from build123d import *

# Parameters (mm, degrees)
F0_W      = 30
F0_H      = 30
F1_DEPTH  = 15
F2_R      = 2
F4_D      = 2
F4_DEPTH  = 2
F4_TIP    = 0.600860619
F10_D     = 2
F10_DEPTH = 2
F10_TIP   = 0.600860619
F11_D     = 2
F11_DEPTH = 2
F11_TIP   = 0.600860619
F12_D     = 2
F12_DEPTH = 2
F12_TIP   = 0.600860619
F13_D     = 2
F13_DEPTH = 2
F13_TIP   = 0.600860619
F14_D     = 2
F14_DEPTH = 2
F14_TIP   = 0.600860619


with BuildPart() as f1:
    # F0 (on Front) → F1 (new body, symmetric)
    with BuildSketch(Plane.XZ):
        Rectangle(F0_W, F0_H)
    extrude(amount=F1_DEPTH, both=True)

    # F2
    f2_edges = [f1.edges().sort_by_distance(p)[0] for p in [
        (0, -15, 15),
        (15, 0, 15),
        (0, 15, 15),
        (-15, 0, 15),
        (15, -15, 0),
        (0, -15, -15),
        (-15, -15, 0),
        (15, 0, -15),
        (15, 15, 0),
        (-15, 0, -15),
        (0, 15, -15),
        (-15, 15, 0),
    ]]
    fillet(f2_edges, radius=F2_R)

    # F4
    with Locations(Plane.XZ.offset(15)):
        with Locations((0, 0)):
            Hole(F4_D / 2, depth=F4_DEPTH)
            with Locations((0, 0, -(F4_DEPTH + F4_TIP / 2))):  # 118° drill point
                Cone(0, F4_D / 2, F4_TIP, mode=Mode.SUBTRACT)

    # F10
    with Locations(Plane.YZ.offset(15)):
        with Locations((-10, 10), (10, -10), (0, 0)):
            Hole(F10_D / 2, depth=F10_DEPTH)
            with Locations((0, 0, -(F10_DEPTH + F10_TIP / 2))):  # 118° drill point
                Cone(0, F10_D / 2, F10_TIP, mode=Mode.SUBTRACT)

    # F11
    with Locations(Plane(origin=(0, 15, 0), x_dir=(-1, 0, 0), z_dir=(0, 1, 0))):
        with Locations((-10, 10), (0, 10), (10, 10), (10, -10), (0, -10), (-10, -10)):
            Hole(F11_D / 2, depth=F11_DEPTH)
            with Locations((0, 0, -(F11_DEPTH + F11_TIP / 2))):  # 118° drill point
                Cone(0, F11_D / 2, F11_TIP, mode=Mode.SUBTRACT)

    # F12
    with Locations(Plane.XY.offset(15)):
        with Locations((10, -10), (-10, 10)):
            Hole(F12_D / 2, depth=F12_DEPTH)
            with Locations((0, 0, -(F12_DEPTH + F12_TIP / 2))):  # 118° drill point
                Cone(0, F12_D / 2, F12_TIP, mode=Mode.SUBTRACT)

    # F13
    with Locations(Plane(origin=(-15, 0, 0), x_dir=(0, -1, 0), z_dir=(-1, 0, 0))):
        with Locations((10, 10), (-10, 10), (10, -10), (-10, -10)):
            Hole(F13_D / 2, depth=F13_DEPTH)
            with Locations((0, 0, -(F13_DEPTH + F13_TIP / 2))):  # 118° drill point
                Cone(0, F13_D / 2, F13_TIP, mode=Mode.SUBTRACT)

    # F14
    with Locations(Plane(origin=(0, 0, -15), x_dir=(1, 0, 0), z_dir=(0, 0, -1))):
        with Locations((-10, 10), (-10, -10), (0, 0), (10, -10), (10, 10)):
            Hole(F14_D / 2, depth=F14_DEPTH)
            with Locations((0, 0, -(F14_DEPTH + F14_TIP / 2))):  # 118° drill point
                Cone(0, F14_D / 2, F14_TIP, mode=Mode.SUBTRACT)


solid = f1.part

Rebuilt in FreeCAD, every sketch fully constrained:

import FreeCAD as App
import Part
import Sketcher
Q = App.Units.Quantity

doc = App.newDocument("Part")
body = doc.addObject("PartDesign::Body", "Body")

sketch1 = doc.addObject("Sketcher::SketchObject", "Sketch")
body.addObject(sketch1)
sketch1.AttachmentSupport = (doc.XZ_Plane, [""])
sketch1.MapMode = "FlatFace"
sketch1.addGeometry([
    Part.LineSegment(App.Vector(-15, 15, 0), App.Vector(-15, -15, 0)),
    Part.LineSegment(App.Vector(-15, -15, 0), App.Vector(15, -15, 0)),
    Part.LineSegment(App.Vector(15, -15, 0), App.Vector(15, 15, 0)),
    Part.LineSegment(App.Vector(15, 15, 0), App.Vector(-15, 15, 0)),
], False)
sketch1.addConstraint([
    Sketcher.Constraint("Coincident", 0, 2, 1, 1),
    Sketcher.Constraint("Coincident", 1, 2, 2, 1),
    Sketcher.Constraint("Coincident", 2, 2, 3, 1),
    Sketcher.Constraint("Coincident", 3, 2, 0, 1),
    Sketcher.Constraint("Vertical", 0),
    Sketcher.Constraint("Horizontal", 1),
    Sketcher.Constraint("Vertical", 2),
    Sketcher.Constraint("Horizontal", 3),
    Sketcher.Constraint("Symmetric", 0, 2, 2, 2, -1, 1),
    Sketcher.Constraint("Equal", 3, 0),
    Sketcher.Constraint("DistanceX", 1, 1, 1, 2, Q("30 mm")),
])
pad1 = doc.addObject("PartDesign::Pad", "Pad")
body.addObject(pad1)
pad1.Profile = sketch1
pad1.Length = 30
pad1.Midplane = True
doc.recompute()

fillet = doc.addObject("PartDesign::Fillet", "Fillet")
body.addObject(fillet)
fillet.Base = (pad1, ["Edge1"])
fillet.UseAllEdges = True
fillet.Radius = 2

sketch2 = doc.addObject("Sketcher::SketchObject", "Sketch001")
body.addObject(sketch2)
sketch2.AttachmentSupport = (doc.XZ_Plane, [""])
sketch2.MapMode = "FlatFace"
sketch2.AttachmentOffset = App.Placement(App.Vector(0, 0, 15), App.Rotation())
sketch2.addGeometry(Part.Circle(App.Vector(0, 0, 0), App.Vector(0, 0, 1), 1), False)
sketch2.addConstraint([
    Sketcher.Constraint("Coincident", 0, 3, -1, 1),
    Sketcher.Constraint("Diameter", 0, Q("2 mm")),
])
doc.recompute()
hole = doc.addObject("PartDesign::Hole", "Hole")
body.addObject(hole)
hole.Profile = sketch2
hole.ThreadType = "None"
hole.Diameter = 2
hole.DepthType = "Dimension"
hole.Depth = 2
hole.DrillPoint = "Angled"
hole.DrillPointAngle = 118

sketch3 = doc.addObject("Sketcher::SketchObject", "Sketch002")
body.addObject(sketch3)
sketch3.AttachmentSupport = (doc.YZ_Plane, [""])
sketch3.MapMode = "FlatFace"
sketch3.AttachmentOffset = App.Placement(App.Vector(0, 0, 15), App.Rotation())
sketch3.addGeometry([
    Part.Circle(App.Vector(-10, 10, 0), App.Vector(0, 0, 1), 1),
    Part.Circle(App.Vector(10, -10, 0), App.Vector(0, 0, 1), 1),
    Part.Circle(App.Vector(0, 0, 0), App.Vector(0, 0, 1), 1),
], False)
sketch3.addConstraint([
    Sketcher.Constraint("Coincident", 2, 3, -1, 1),
    Sketcher.Constraint("Equal", 0, 1),
    Sketcher.Constraint("Equal", 1, 2),
    Sketcher.Constraint("Symmetric", 0, 3, 1, 3, -1, 1),
    Sketcher.Constraint("Diameter", 0, Q("2 mm")),
    Sketcher.Constraint("DistanceX", 0, 3, -1, 1, Q("10 mm")),
    Sketcher.Constraint("DistanceY", -1, 1, 0, 3, Q("10 mm")),
])
doc.recompute()
hole2 = doc.addObject("PartDesign::Hole", "Hole001")
body.addObject(hole2)
hole2.Profile = sketch3
hole2.ThreadType = "None"
hole2.Diameter = 2
hole2.DepthType = "Dimension"
hole2.Depth = 2
hole2.DrillPoint = "Angled"
hole2.DrillPointAngle = 118

sketch4 = doc.addObject("Sketcher::SketchObject", "Sketch003")
body.addObject(sketch4)
sketch4.AttachmentSupport = (doc.XZ_Plane, [""])
sketch4.MapMode = "FlatFace"
sketch4.AttachmentOffset = App.Placement(App.Vector(0, 0, -15), App.Rotation())
sketch4.addGeometry([
    Part.Circle(App.Vector(10, 10, 0), App.Vector(0, 0, 1), 1),
    Part.Circle(App.Vector(0, 10, 0), App.Vector(0, 0, 1), 1),
    Part.Circle(App.Vector(-10, 10, 0), App.Vector(0, 0, 1), 1),
    Part.Circle(App.Vector(-10, -10, 0), App.Vector(0, 0, 1), 1),
    Part.Circle(App.Vector(0, -10, 0), App.Vector(0, 0, 1), 1),
    Part.Circle(App.Vector(10, -10, 0), App.Vector(0, 0, 1), 1),
], False)
sketch4.addConstraint([
    Sketcher.Constraint("Equal", 0, 1),
    Sketcher.Constraint("Equal", 1, 2),
    Sketcher.Constraint("Equal", 2, 3),
    Sketcher.Constraint("Equal", 3, 4),
    Sketcher.Constraint("Equal", 4, 5),
    Sketcher.Constraint("Symmetric", 0, 3, 3, 3, -1, 1),
    Sketcher.Constraint("Symmetric", 1, 3, 4, 3, -1, 1),
    Sketcher.Constraint("Symmetric", 2, 3, 5, 3, -1, 1),
    Sketcher.Constraint("Symmetric", 0, 3, 2, 3, -2),
    Sketcher.Constraint("PointOnObject", 1, 3, -2),
    Sketcher.Constraint("Horizontal", 0, 3, 1, 3),
    Sketcher.Constraint("Diameter", 0, Q("2 mm")),
    Sketcher.Constraint("DistanceX", -1, 1, 0, 3, Q("10 mm")),
    Sketcher.Constraint("DistanceY", -1, 1, 0, 3, Q("10 mm")),
])
doc.recompute()
hole3 = doc.addObject("PartDesign::Hole", "Hole002")
body.addObject(hole3)
hole3.Profile = sketch4
hole3.ThreadType = "None"
hole3.Diameter = 2
hole3.DepthType = "Dimension"
hole3.Depth = 2
hole3.DrillPoint = "Angled"
hole3.DrillPointAngle = 118
hole3.Reversed = True

sketch5 = doc.addObject("Sketcher::SketchObject", "Sketch004")
body.addObject(sketch5)
sketch5.AttachmentSupport = (doc.XY_Plane, [""])
sketch5.MapMode = "FlatFace"
sketch5.AttachmentOffset = App.Placement(App.Vector(0, 0, 15), App.Rotation())
sketch5.addGeometry([
    Part.Circle(App.Vector(10, -10, 0), App.Vector(0, 0, 1), 1),
    Part.Circle(App.Vector(-10, 10, 0), App.Vector(0, 0, 1), 1),
], False)
sketch5.addConstraint([
    Sketcher.Constraint("Equal", 0, 1),
    Sketcher.Constraint("Symmetric", 0, 3, 1, 3, -1, 1),
    Sketcher.Constraint("Diameter", 0, Q("2 mm")),
    Sketcher.Constraint("DistanceX", -1, 1, 0, 3, Q("10 mm")),
    Sketcher.Constraint("DistanceY", 0, 3, -1, 1, Q("10 mm")),
])
doc.recompute()
hole4 = doc.addObject("PartDesign::Hole", "Hole003")
body.addObject(hole4)
hole4.Profile = sketch5
hole4.ThreadType = "None"
hole4.Diameter = 2
hole4.DepthType = "Dimension"
hole4.Depth = 2
hole4.DrillPoint = "Angled"
hole4.DrillPointAngle = 118

sketch6 = doc.addObject("Sketcher::SketchObject", "Sketch005")
body.addObject(sketch6)
sketch6.AttachmentSupport = (doc.YZ_Plane, [""])
sketch6.MapMode = "FlatFace"
sketch6.AttachmentOffset = App.Placement(App.Vector(0, 0, -15), App.Rotation())
sketch6.addGeometry([
    Part.Circle(App.Vector(-10, 10, 0), App.Vector(0, 0, 1), 1),
    Part.Circle(App.Vector(10, 10, 0), App.Vector(0, 0, 1), 1),
    Part.Circle(App.Vector(-10, -10, 0), App.Vector(0, 0, 1), 1),
    Part.Circle(App.Vector(10, -10, 0), App.Vector(0, 0, 1), 1),
], False)
sketch6.addConstraint([
    Sketcher.Constraint("Equal", 0, 1),
    Sketcher.Constraint("Equal", 1, 2),
    Sketcher.Constraint("Equal", 2, 3),
    Sketcher.Constraint("Symmetric", 1, 3, 2, 3, -1, 1),
    Sketcher.Constraint("Symmetric", 0, 3, 3, 3, -1, 1),
    Sketcher.Constraint("Symmetric", 0, 3, 1, 3, -2),
    Sketcher.Constraint("Diameter", 0, Q("2 mm")),
    Sketcher.Constraint("DistanceX", 0, 3, -1, 1, Q("10 mm")),
    Sketcher.Constraint("DistanceY", -1, 1, 0, 3, Q("10 mm")),
])
doc.recompute()
hole5 = doc.addObject("PartDesign::Hole", "Hole004")
body.addObject(hole5)
hole5.Profile = sketch6
hole5.ThreadType = "None"
hole5.Diameter = 2
hole5.DepthType = "Dimension"
hole5.Depth = 2
hole5.DrillPoint = "Angled"
hole5.DrillPointAngle = 118
hole5.Reversed = True

sketch7 = doc.addObject("Sketcher::SketchObject", "Sketch006")
body.addObject(sketch7)
sketch7.AttachmentSupport = (doc.XY_Plane, [""])
sketch7.MapMode = "FlatFace"
sketch7.AttachmentOffset = App.Placement(App.Vector(0, 0, -15), App.Rotation())
sketch7.addGeometry([
    Part.Circle(App.Vector(-10, -10, 0), App.Vector(0, 0, 1), 1),
    Part.Circle(App.Vector(-10, 10, 0), App.Vector(0, 0, 1), 1),
    Part.Circle(App.Vector(0, 0, 0), App.Vector(0, 0, 1), 1),
    Part.Circle(App.Vector(10, 10, 0), App.Vector(0, 0, 1), 1),
    Part.Circle(App.Vector(10, -10, 0), App.Vector(0, 0, 1), 1),
], False)
sketch7.addConstraint([
    Sketcher.Constraint("Coincident", 2, 3, -1, 1),
    Sketcher.Constraint("Equal", 0, 1),
    Sketcher.Constraint("Equal", 1, 2),
    Sketcher.Constraint("Equal", 2, 3),
    Sketcher.Constraint("Equal", 3, 4),
    Sketcher.Constraint("Symmetric", 0, 3, 3, 3, -1, 1),
    Sketcher.Constraint("Symmetric", 1, 3, 4, 3, -1, 1),
    Sketcher.Constraint("Symmetric", 1, 3, 3, 3, -2),
    Sketcher.Constraint("Diameter", 0, Q("2 mm")),
    Sketcher.Constraint("DistanceX", 0, 3, -1, 1, Q("10 mm")),
    Sketcher.Constraint("DistanceY", 0, 3, -1, 1, Q("10 mm")),
])
doc.recompute()
hole6 = doc.addObject("PartDesign::Hole", "Hole005")
body.addObject(hole6)
hole6.Profile = sketch7
hole6.ThreadType = "None"
hole6.Diameter = 2
hole6.DepthType = "Dimension"
hole6.Depth = 2
hole6.DrillPoint = "Angled"
hole6.DrillPointAngle = 118
hole6.Reversed = True

doc.recompute()
